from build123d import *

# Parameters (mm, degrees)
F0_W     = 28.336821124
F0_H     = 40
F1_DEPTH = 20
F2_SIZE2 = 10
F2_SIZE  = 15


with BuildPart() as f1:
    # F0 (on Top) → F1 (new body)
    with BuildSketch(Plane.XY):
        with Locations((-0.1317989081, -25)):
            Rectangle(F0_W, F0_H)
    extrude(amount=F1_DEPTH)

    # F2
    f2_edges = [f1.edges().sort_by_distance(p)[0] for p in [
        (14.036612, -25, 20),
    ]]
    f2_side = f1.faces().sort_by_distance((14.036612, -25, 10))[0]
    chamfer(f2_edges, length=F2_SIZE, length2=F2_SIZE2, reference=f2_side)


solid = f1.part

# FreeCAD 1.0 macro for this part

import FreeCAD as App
import Part
import Sketcher

V = App.Vector


def edges_at(feature, points):
    """Names of the edges that pass closest to the given points."""
    edges = feature.Shape.Edges
    near = lambda p: min(range(len(edges)), key=lambda i: edges[i].distToShape(Part.Vertex(*p))[0])
    return sorted({f"Edge{near(p) + 1}" for p in points})

doc = App.newDocument("Part")
body = doc.addObject("PartDesign::Body", "Body")

sketch1 = body.newObject("Sketcher::SketchObject", "Sketch")
sketch1.AttachmentSupport = (doc.getObject("XY_Plane"), [""])
sketch1.MapMode = "FlatFace"
sketch1.addGeometry([
    Part.LineSegment(V(-14, -5, 0), V(-14, -45, 0)),
    Part.LineSegment(V(-14, -45, 0), V(14, -45, 0)),
    Part.LineSegment(V(14, -45, 0), V(14, -5, 0)),
    Part.LineSegment(V(14, -5, 0), V(-14, -5, 0)),
], False)
sketch1.addConstraint([
    Sketcher.Constraint("Coincident", 0, 2, 1, 1),
    Sketcher.Constraint("Coincident", 1, 2, 2, 1),
    Sketcher.Constraint("Coincident", 2, 2, 3, 1),
    Sketcher.Constraint("Coincident", 3, 2, 0, 1),
    Sketcher.Constraint("Vertical", 0),
    Sketcher.Constraint("Horizontal", 1),
    Sketcher.Constraint("Vertical", 2),
    Sketcher.Constraint("Horizontal", 3),
    Sketcher.Constraint("DistanceY", 0, 2, 0, 1, 40.0),
    Sketcher.Constraint("DistanceY", 0, 2, -1, 1, 45.0),
    Sketcher.Constraint("DistanceX", 1, 1, 1, 2, 28.336821),
    Sketcher.Constraint("DistanceX", 0, 2, -1, 1, 14.300209),
])
pad1 = body.newObject("PartDesign::Pad", "Pad")
pad1.Profile = sketch1
pad1.Length = 20
doc.recompute()

chamfer = body.newObject("PartDesign::Chamfer", "Chamfer")
chamfer.Base = (pad1, edges_at(pad1, [(14.037, -25, 20)]))
chamfer.ChamferType = "Two distances"
chamfer.Size = 15
chamfer.Size2 = 10

doc.recompute()
